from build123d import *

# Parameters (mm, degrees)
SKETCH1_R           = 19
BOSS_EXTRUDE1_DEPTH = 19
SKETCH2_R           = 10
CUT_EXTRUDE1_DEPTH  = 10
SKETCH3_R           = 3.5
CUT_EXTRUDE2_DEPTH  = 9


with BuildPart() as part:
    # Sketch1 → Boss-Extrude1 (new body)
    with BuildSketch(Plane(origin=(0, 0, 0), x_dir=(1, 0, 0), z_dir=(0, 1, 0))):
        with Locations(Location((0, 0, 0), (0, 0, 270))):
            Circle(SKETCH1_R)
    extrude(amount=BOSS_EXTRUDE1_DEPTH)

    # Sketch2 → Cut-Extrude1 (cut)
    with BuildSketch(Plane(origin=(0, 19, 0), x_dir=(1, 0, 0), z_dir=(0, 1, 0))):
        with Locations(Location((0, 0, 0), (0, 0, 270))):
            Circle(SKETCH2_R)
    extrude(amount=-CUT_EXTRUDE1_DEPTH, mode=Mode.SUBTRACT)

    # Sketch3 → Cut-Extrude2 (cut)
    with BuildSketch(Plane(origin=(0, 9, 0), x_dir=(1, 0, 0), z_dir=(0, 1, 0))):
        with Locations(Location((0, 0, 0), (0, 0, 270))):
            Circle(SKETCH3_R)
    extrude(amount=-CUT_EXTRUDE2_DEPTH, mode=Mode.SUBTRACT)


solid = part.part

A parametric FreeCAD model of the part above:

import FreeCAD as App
import Part
import Sketcher
Q = App.Units.Quantity

doc = App.newDocument("Part")
body = doc.addObject("PartDesign::Body", "Body")

# Sketch on XZ plane
sketch1 = body.newObject("Sketcher::SketchObject", "Sketch")
sketch1.AttachmentSupport = (doc.getObject("XZ_Plane"), [""])
sketch1.MapMode = "FlatFace"
sketch1.addGeometry(Part.Circle(App.Vector(0, 0, 0), App.Vector(0, 0, 1), 19), False)
sketch1.addConstraint([
    Sketcher.Constraint("Coincident", 0, 3, -1, 1),
    Sketcher.Constraint("Diameter", 0, Q("38 mm")),
])
pad1 = body.newObject("PartDesign::Pad", "Pad")
pad1.Profile = sketch1
pad1.Length = 19
pad1.Reversed = True

# Sketch on XZ plane
sketch2 = body.newObject("Sketcher::SketchObject", "Sketch001")
sketch2.AttachmentSupport = (doc.getObject("XZ_Plane"), [""])
sketch2.MapMode = "FlatFace"
sketch2.AttachmentOffset = App.Placement(App.Vector(0, 0, -19), App.Rotation())
sketch2.addGeometry(Part.Circle(App.Vector(0, 0, 0), App.Vector(0, 0, 1), 10), False)
sketch2.addConstraint([
    Sketcher.Constraint("Coincident", 0, 3, -1, 1),
    Sketcher.Constraint("Diameter", 0, Q("20 mm")),
])
pocket1 = body.newObject("PartDesign::Pocket", "Pocket")
pocket1.Profile = sketch2
pocket1.Length = 10
pocket1.Reversed = True

# Sketch on XZ plane
sketch3 = body.newObject("Sketcher::SketchObject", "Sketch002")
sketch3.AttachmentSupport = (doc.getObject("XZ_Plane"), [""])
sketch3.MapMode = "FlatFace"
sketch3.AttachmentOffset = App.Placement(App.Vector(0, 0, -9), App.Rotation())
sketch3.addGeometry(Part.Circle(App.Vector(0, 0, 0), App.Vector(0, 0, 1), 3.5), False)
sketch3.addConstraint([
    Sketcher.Constraint("Coincident", 0, 3, -1, 1),
    Sketcher.Constraint("Diameter", 0, Q("7 mm")),
])
pocket2 = body.newObject("PartDesign::Pocket", "Pocket001")
pocket2.Profile = sketch3
pocket2.Length = 9
pocket2.Reversed = True

doc.recompute()
